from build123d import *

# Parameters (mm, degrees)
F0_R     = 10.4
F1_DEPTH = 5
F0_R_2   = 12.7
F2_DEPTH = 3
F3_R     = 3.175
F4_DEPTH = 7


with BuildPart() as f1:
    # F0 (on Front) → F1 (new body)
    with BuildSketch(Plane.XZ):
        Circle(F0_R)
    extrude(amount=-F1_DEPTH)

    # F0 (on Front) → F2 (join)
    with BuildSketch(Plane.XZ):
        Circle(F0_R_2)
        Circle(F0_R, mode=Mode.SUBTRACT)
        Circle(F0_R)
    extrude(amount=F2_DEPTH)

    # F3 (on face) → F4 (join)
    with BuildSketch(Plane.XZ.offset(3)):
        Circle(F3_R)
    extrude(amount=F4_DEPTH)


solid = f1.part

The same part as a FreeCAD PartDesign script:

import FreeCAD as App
import Part
import Sketcher
from FreeCAD import Vector

doc = App.newDocument("Part")
params = doc.addObject("Spreadsheet::Sheet", "Params")
for row, (alias, value) in enumerate([
    ("sketch1_diameter", "20.8 mm"),
    ("pad1_length", "5 mm"),
    ("sketch2_diameter", "25.4 mm"),
    ("pad2_length", "3 mm"),
    ("sketch3_diameter", "6.35 mm"),
    ("pad3_length", "7 mm"),
], start=1):
    params.set(f"A{row}", alias)
    params.set(f"B{row}", "=" + value)
    params.setAlias(f"B{row}", alias)

body = doc.addObject("PartDesign::Body", "Body")

sketch1 = body.newObject("Sketcher::SketchObject", "Sketch")
sketch1.AttachmentSupport = (doc.getObject("XZ_Plane"), [""])
sketch1.MapMode = "FlatFace"
sketch1.addGeometry(Part.Circle(Vector(0, 0, 0), Vector(0, 0, 1), 10), False)
sketch1.addConstraint(Sketcher.Constraint("Coincident", 0, 3, -1, 1))
sketch1.addConstraint(Sketcher.Constraint("Diameter", 0, 20.8))
sketch1.setExpression("Constraints[1]", "Params.sketch1_diameter")
pad1 = body.newObject("PartDesign::Pad", "Pad")
pad1.Profile = sketch1
pad1.setExpression("Length", "Params.pad1_length")
pad1.Reversed = True

sketch2 = body.newObject("Sketcher::SketchObject", "Sketch001")
sketch2.AttachmentSupport = (doc.getObject("XZ_Plane"), [""])
sketch2.MapMode = "FlatFace"
sketch2.addGeometry(Part.Circle(Vector(0, 0, 0), Vector(0, 0, 1), 13), False)
sketch2.addConstraint(Sketcher.Constraint("Coincident", 0, 3, -1, 1))
sketch2.addConstraint(Sketcher.Constraint("Diameter", 0, 25.4))
sketch2.setExpression("Constraints[1]", "Params.sketch2_diameter")
pad2 = body.newObject("PartDesign::Pad", "Pad001")
pad2.Profile = sketch2
pad2.setExpression("Length", "Params.pad2_length")

sketch3 = body.newObject("Sketcher::SketchObject", "Sketch002")
sketch3.AttachmentSupport = (doc.getObject("XZ_Plane"), [""])
sketch3.MapMode = "FlatFace"
sketch3.AttachmentOffset = App.Placement(Vector(0, 0, 3), App.Rotation())
sketch3.addGeometry(Part.Circle(Vector(0, 0, 0), Vector(0, 0, 1), 3.2), False)
sketch3.addConstraint(Sketcher.Constraint("Coincident", 0, 3, -1, 1))
sketch3.addConstraint(Sketcher.Constraint("Diameter", 0, 6.35))
sketch3.setExpression("Constraints[1]", "Params.sketch3_diameter")
pad3 = body.newObject("PartDesign::Pad", "Pad002")
pad3.Profile = sketch3
pad3.setExpression("Length", "Params.pad3_length")

doc.recompute()
